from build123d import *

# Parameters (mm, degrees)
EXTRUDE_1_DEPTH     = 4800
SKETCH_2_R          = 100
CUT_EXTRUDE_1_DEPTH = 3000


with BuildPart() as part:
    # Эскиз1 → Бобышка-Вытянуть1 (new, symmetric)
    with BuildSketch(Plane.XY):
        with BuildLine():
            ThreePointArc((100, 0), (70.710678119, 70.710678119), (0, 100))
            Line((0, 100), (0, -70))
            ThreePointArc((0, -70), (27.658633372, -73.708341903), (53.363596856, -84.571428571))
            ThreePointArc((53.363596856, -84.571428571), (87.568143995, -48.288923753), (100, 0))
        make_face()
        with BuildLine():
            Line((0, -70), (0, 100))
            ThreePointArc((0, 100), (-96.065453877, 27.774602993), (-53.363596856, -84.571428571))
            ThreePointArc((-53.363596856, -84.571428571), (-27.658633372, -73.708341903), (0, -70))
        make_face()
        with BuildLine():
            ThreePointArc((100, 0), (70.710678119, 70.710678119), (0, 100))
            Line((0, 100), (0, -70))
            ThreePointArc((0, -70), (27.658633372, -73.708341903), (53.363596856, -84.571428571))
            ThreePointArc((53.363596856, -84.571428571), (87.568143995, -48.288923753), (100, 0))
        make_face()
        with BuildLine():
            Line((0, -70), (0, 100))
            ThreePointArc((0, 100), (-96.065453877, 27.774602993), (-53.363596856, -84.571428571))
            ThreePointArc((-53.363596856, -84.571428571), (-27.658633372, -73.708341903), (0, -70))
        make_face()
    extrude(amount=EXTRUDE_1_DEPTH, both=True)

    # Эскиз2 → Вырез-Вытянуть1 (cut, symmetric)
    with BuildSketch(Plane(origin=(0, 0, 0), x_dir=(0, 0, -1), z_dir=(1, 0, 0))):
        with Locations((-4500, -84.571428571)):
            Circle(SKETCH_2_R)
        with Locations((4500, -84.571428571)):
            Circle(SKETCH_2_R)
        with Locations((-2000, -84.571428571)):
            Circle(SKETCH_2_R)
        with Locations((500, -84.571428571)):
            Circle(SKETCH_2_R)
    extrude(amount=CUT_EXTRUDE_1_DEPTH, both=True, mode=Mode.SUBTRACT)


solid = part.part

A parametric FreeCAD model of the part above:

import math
import FreeCAD as App
import Part
import Sketcher

doc = App.newDocument("Part")
body = doc.addObject("PartDesign::Body", "Body")

# Sketch on XY plane
sketch1 = doc.addObject("Sketcher::SketchObject", "Sketch")
body.addObject(sketch1)
sketch1.AttachmentSupport = (doc.XY_Plane, [""])
sketch1.MapMode = "FlatFace"
sketch1.addGeometry([
    Part.ArcOfCircle(Part.Circle(App.Vector(0, -175, 0), App.Vector(0, 0, 1), 105), math.radians(59.454348), math.radians(90)),  # 0
    Part.ArcOfCircle(Part.Circle(App.Vector(0, 0, 0), App.Vector(0, 0, 1), 100), math.radians(-57.748547), math.radians(0)),  # 1
    Part.ArcOfCircle(Part.Circle(App.Vector(0, 0, 0), App.Vector(0, 0, 1), 100), math.radians(0), math.radians(90)),  # 2
    Part.ArcOfCircle(Part.Circle(App.Vector(0, 0, 0), App.Vector(0, 0, 1), 100), math.radians(90), math.radians(237.748547)),  # 3
    Part.ArcOfCircle(Part.Circle(App.Vector(0, -175, 0), App.Vector(0, 0, 1), 105), math.radians(90), math.radians(120.545652)),  # 4
], False)
sketch1.addConstraint([
    Sketcher.Constraint("Coincident", 0, 1, 1, 1),
    Sketcher.Constraint("Tangent", 1, 2, 2, 1),
    Sketcher.Constraint("Tangent", 2, 2, 3, 1),
    Sketcher.Constraint("Coincident", 3, 2, 4, 2),
    Sketcher.Constraint("Tangent", 4, 1, 0, 2),
    Sketcher.Constraint("Coincident", 1, 3, -1, 1),
    Sketcher.Constraint("Coincident", 3, 3, -1, 1),
    Sketcher.Constraint("Equal", 0, 4),
    Sketcher.Constraint("PointOnObject", 0, 3, -2),
    Sketcher.Constraint("PointOnObject", 1, 2, -1),
    Sketcher.Constraint("PointOnObject", 2, 2, -2),
    Sketcher.Constraint("PointOnObject", 4, 1, -2),
    Sketcher.Constraint("Radius", 0, 105.0),
    Sketcher.Constraint("Radius", 1, 100.0),
    Sketcher.Constraint("DistanceY", 0, 3, -1, 1, 175.0),
])
pad1 = doc.addObject("PartDesign::Pad", "Pad")
body.addObject(pad1)
pad1.Profile = sketch1
pad1.Length = 9600
pad1.Midplane = True

# Sketch on YZ plane
sketch2 = doc.addObject("Sketcher::SketchObject", "Sketch001")
body.addObject(sketch2)
sketch2.AttachmentSupport = (doc.YZ_Plane, [""])
sketch2.MapMode = "FlatFace"
sketch2.addGeometry([
    Part.Circle(App.Vector(-84.571429, 4500, 0), App.Vector(0, 0, 1), 100),
    Part.Circle(App.Vector(-84.571429, -4500, 0), App.Vector(0, 0, 1), 100),
    Part.Circle(App.Vector(-84.571429, 2000, 0), App.Vector(0, 0, 1), 100),
    Part.Circle(App.Vector(-84.571429, -500, 0), App.Vector(0, 0, 1), 100),
], False)
sketch2.addConstraint([
    Sketcher.Constraint("Equal", 0, 1),
    Sketcher.Constraint("Equal", 1, 2),
    Sketcher.Constraint("Equal", 2, 3),
    Sketcher.Constraint("Symmetric", 0, 3, 1, 3, -1),
    Sketcher.Constraint("Vertical", 1, 3, 2, 3),
    Sketcher.Constraint("Vertical", 2, 3, 3, 3),
    Sketcher.Constraint("Diameter", 0, 200.0),
    Sketcher.Constraint("DistanceY", -1, 1, 0, 3, 4500.0),
    Sketcher.Constraint("DistanceY", -1, 1, 2, 3, 2000.0),
    Sketcher.Constraint("DistanceY", 3, 3, -1, 1, 500.0),
    Sketcher.Constraint("DistanceX", 0, 3, -1, 1, 84.571429),
])
pocket1 = doc.addObject("PartDesign::Pocket", "Pocket")
body.addObject(pocket1)
pocket1.Profile = sketch2
pocket1.Length = 6000
pocket1.Midplane = True

doc.recompute()
